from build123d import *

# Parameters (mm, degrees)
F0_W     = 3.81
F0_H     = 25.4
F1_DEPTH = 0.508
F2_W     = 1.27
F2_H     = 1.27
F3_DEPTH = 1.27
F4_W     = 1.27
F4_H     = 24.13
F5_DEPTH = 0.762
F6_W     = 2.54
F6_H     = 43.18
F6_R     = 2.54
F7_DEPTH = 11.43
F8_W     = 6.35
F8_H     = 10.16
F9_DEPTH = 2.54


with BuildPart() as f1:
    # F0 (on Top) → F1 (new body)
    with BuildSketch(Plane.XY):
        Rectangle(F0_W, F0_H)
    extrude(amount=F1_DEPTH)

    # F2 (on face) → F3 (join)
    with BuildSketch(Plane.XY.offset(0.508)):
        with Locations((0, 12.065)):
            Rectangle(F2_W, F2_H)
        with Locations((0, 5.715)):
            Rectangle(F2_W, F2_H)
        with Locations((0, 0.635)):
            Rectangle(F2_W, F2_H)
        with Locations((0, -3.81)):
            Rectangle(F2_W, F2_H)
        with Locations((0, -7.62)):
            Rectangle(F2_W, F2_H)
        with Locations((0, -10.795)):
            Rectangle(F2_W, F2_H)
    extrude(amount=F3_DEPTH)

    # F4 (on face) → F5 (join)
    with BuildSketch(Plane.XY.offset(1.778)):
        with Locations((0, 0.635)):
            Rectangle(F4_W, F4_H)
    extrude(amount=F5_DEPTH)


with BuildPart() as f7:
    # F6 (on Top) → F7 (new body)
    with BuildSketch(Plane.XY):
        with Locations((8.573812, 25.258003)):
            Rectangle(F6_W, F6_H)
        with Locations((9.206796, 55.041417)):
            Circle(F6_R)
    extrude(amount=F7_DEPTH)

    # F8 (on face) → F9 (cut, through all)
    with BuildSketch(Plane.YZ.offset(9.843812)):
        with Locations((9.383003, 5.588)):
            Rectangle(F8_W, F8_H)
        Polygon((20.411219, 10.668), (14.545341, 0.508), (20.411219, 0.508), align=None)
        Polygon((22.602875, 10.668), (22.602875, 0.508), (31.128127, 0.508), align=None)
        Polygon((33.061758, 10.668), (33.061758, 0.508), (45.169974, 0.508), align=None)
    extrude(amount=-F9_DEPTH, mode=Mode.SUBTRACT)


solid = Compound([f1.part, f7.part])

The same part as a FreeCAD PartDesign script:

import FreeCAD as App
import Part
import Sketcher
Q = App.Units.Quantity


def add_polygon(sketch, points):
    """Adds a closed chain of lines whose ends are joined by coincident constraints."""
    first, n = sketch.GeometryCount, len(points)
    for a, b in zip(points, points[1:] + points[:1]):
        sketch.addGeometry(Part.LineSegment(App.Vector(*a, 0), App.Vector(*b, 0)), False)
    for i in range(n):
        sketch.addConstraint(Sketcher.Constraint("Coincident", first + i, 2, first + (i + 1) % n, 1))

doc = App.newDocument("Part")
params = doc.addObject("Spreadsheet::Sheet", "Params")
for row, (alias, value) in enumerate([
    ("sketch1_height", "1 in"),
    ("sketch1_width", "0.15 in"),
    ("pad1_length", "0.02 in"),
    ("sketch2_width", "0.05 in"),
    ("pad2_length", "0.05 in"),
    ("sketch3_width", "0.05 in"),
    ("sketch3_height", "0.95 in"),
    ("pad3_length", "0.03 in"),
    ("sketch4_diameter", "0.2 in"),
    ("sketch4_width", "0.1 in"),
    ("sketch4_height", "1.7 in"),
    ("pad4_length", "0.45 in"),
    ("sketch5_height", "0.4 in"),
    ("sketch5_width", "0.25 in"),
], start=1):
    params.set(f"A{row}", alias)
    params.set(f"B{row}", "=" + value)
    params.setAlias(f"B{row}", alias)

body = doc.addObject("PartDesign::Body", "Body")

sketch1 = body.newObject("Sketcher::SketchObject", "Sketch")
sketch1.AttachmentSupport = (doc.getObject("XY_Plane"), [""])
sketch1.MapMode = "FlatFace"
add_polygon(sketch1, [(-1.9, 12.7), (-1.9, -12.7), (1.9, -12.7), (1.9, 12.7)])
sketch1.addConstraint([
    Sketcher.Constraint("Vertical", 0),
    Sketcher.Constraint("Horizontal", 1),
    Sketcher.Constraint("Vertical", 2),
    Sketcher.Constraint("Horizontal", 3),
    Sketcher.Constraint("Symmetric", 0, 2, 2, 2, -1, 1),
    Sketcher.Constraint("DistanceY", 0, 2, 0, 1, Q("1 in")),
    Sketcher.Constraint("DistanceX", 1, 1, 1, 2, Q("0.15 in")),
])
sketch1.setExpression("Constraints[9]", "Params.sketch1_height")
sketch1.setExpression("Constraints[10]", "Params.sketch1_width")
pad1 = body.newObject("PartDesign::Pad", "Pad")
pad1.Profile = sketch1
pad1.setExpression("Length", "Params.pad1_length")

sketch2 = body.newObject("Sketcher::SketchObject", "Sketch001")
sketch2.AttachmentSupport = (doc.getObject("XY_Plane"), [""])
sketch2.MapMode = "FlatFace"
sketch2.AttachmentOffset = App.Placement(App.Vector(0, 0, 0.02 * 25.4), App.Rotation())
add_polygon(sketch2, [(-0.6, 12.7), (-0.6, 11.4), (0.6, 11.4), (0.6, 12.7)])
add_polygon(sketch2, [(-0.6, 6.3), (-0.6, 5.1), (0.6, 5.1), (0.6, 6.3)])
add_polygon(sketch2, [(-0.6, 1.3), (-0.6, 0), (0.6, 0), (0.6, 1.3)])
add_polygon(sketch2, [(-0.6, -3.2), (-0.6, -4.4), (0.6, -4.4), (0.6, -3.2)])
add_polygon(sketch2, [(-0.6, -7), (-0.6, -8.3), (0.6, -8.3), (0.6, -7)])
add_polygon(sketch2, [(-0.6, -10.2), (-0.6, -11.4), (0.6, -11.4), (0.6, -10.2)])
sketch2.addConstraint([
    Sketcher.Constraint("Vertical", 0),
    Sketcher.Constraint("Horizontal", 1),
    Sketcher.Constraint("Vertical", 2),
    Sketcher.Constraint("Horizontal", 3),
    Sketcher.Constraint("Vertical", 4),
    Sketcher.Constraint("Horizontal", 5),
    Sketcher.Constraint("Vertical", 6),
    Sketcher.Constraint("Horizontal", 7),
    Sketcher.Constraint("Vertical", 8),
    Sketcher.Constraint("Horizontal", 9),
    Sketcher.Constraint("Vertical", 10),
    Sketcher.Constraint("Horizontal", 11),
    Sketcher.Constraint("Vertical", 12),
    Sketcher.Constraint("Horizontal", 13),
    Sketcher.Constraint("Vertical", 14),
    Sketcher.Constraint("Horizontal", 15),
    Sketcher.Constraint("Vertical", 16),
    Sketcher.Constraint("Horizontal", 17),
    Sketcher.Constraint("Vertical", 18),
    Sketcher.Constraint("Horizontal", 19),
    Sketcher.Constraint("Vertical", 20),
    Sketcher.Constraint("Horizontal", 21),
    Sketcher.Constraint("Vertical", 22),
    Sketcher.Constraint("Horizontal", 23),
    Sketcher.Constraint("Symmetric", 8, 2, 9, 2, -1, 1),
    Sketcher.Constraint("Symmetric", 1, 2, 20, 2, -1, 1),
    Sketcher.Constraint("Vertical", 3, 2, 4, 2),
    Sketcher.Constraint("Vertical", 2, 2, 5, 2),
    Sketcher.Constraint("Vertical", 7, 2, 8, 2),
    Sketcher.Constraint("Vertical", 6, 2, 9, 2),
    Sketcher.Constraint("Vertical", 11, 2, 12, 2),
    Sketcher.Constraint("Vertical", 10, 2, 13, 2),
    Sketcher.Constraint("Vertical", 15, 2, 16, 2),
    Sketcher.Constraint("Vertical", 14, 2, 17, 2),
    Sketcher.Constraint("Vertical", 18, 2, 21, 2),
    Sketcher.Constraint("Equal", 23, 0),
    Sketcher.Constraint("Equal", 2, 4),
    Sketcher.Constraint("Equal", 6, 8),
    Sketcher.Constraint("Equal", 10, 12),
    Sketcher.Constraint("Equal", 14, 16),
    Sketcher.Constraint("Equal", 18, 20),
    Sketcher.Constraint("DistanceX", 1, 1, 1, 2, Q("0.05 in")),
    Sketcher.Constraint("DistanceY", -1, 1, 2, 2, Q("0.5 in")),
    Sketcher.Constraint("DistanceY", -1, 1, 4, 2, Q("0.2 in")),
    Sketcher.Constraint("DistanceY", 16, 2, 15, 2, Q("0.2 in")),
    Sketcher.Constraint("DistanceY", 12, 2, -1, 1, Q("0.175 in")),
])
sketch2.setExpression("Constraints[65]", "Params.sketch2_width")
pad2 = body.newObject("PartDesign::Pad", "Pad001")
pad2.Profile = sketch2
pad2.setExpression("Length", "Params.pad2_length")

sketch3 = body.newObject("Sketcher::SketchObject", "Sketch002")
sketch3.AttachmentSupport = (doc.getObject("XY_Plane"), [""])
sketch3.MapMode = "FlatFace"
sketch3.AttachmentOffset = App.Placement(App.Vector(0, 0, 0.07 * 25.4), App.Rotation())
add_polygon(sketch3, [(-0.6, 12.7), (-0.6, -11.4), (0.6, -11.4), (0.6, 12.7)])
sketch3.addConstraint([
    Sketcher.Constraint("Vertical", 0),
    Sketcher.Constraint("Horizontal", 1),
    Sketcher.Constraint("Vertical", 2),
    Sketcher.Constraint("Horizontal", 3),
    Sketcher.Constraint("DistanceX", 1, 1, 1, 2, Q("0.05 in")),
    Sketcher.Constraint("DistanceY", 0, 2, 0, 1, Q("0.95 in")),
    Sketcher.Constraint("DistanceY", -1, 1, 2, 2, Q("0.5 in")),
    Sketcher.Constraint("DistanceX", 0, 2, -1, 1, Q("0.025 in")),
])
sketch3.setExpression("Constraints[8]", "Params.sketch3_width")
sketch3.setExpression("Constraints[9]", "Params.sketch3_height")
pad3 = body.newObject("PartDesign::Pad", "Pad002")
pad3.Profile = sketch3
pad3.setExpression("Length", "Params.pad3_length")
body2 = doc.addObject("PartDesign::Body", "Body001")
body2.AllowCompound = True

sketch4 = body2.newObject("Sketcher::SketchObject", "Sketch003")
sketch4.AttachmentSupport = (doc.getObject("XY_Plane001"), [""])
sketch4.MapMode = "FlatFace"
add_polygon(sketch4, [(7.3, 46.8), (7.3, 3.7), (9.8, 3.7), (9.8, 46.8)])
sketch4.addGeometry(Part.Circle(App.Vector(9.2, 55, 0), App.Vector(0, 0, 1), 2.5), False)
sketch4.addConstraint([
    Sketcher.Constraint("Vertical", 0),
    Sketcher.Constraint("Horizontal", 1),
    Sketcher.Constraint("Vertical", 2),
    Sketcher.Constraint("Horizontal", 3),
    Sketcher.Constraint("Diameter", 4, Q("0.2 in")),
    Sketcher.Constraint("DistanceX", 1, 1, 1, 2, Q("0.1 in")),
    Sketcher.Constraint("DistanceY", 0, 2, 0, 1, Q("1.7 in")),
    Sketcher.Constraint("DistanceX", -1, 1, 0, 2, Q("7.303812 mm")),
    Sketcher.Constraint("DistanceX", -1, 1, 4, 3, Q("9.206796 mm")),
    Sketcher.Constraint("DistanceY", -1, 1, 4, 3, Q("55.041417 mm")),
    Sketcher.Constraint("DistanceY", -1, 1, 0, 2, Q("3.668003 mm")),
])
sketch4.setExpression("Constraints[8]", "Params.sketch4_diameter")
sketch4.setExpression("Constraints[9]", "Params.sketch4_width")
sketch4.setExpression("Constraints[10]", "Params.sketch4_height")
pad4 = body2.newObject("PartDesign::Pad", "Pad003")
pad4.Profile = sketch4
pad4.setExpression("Length", "Params.pad4_length")

sketch5 = body2.newObject("Sketcher::SketchObject", "Sketch004")
sketch5.AttachmentSupport = (doc.getObject("YZ_Plane001"), [""])
sketch5.MapMode = "FlatFace"
sketch5.AttachmentOffset = App.Placement(App.Vector(0, 0, 9.843812), App.Rotation())
add_polygon(sketch5, [(6, 11), (6, 1), (13, 1), (13, 11)])
add_polygon(sketch5, [(20, 11), (15, 1), (20, 1)])
add_polygon(sketch5, [(23, 11), (23, 1), (31, 1)])
add_polygon(sketch5, [(33, 11), (33, 1), (45, 1)])
sketch5.addConstraint([
    Sketcher.Constraint("Vertical", 0),
    Sketcher.Constraint("Horizontal", 1),
    Sketcher.Constraint("Vertical", 2),
    Sketcher.Constraint("Horizontal", 3),
    Sketcher.Constraint("Horizontal", 5),
    Sketcher.Constraint("Vertical", 6),
    Sketcher.Constraint("Vertical", 7),
    Sketcher.Constraint("Horizontal", 8),
    Sketcher.Constraint("Vertical", 10),
    Sketcher.Constraint("Horizontal", 11),
    Sketcher.Constraint("Horizontal", 1, 2, 4, 2),
    Sketcher.Constraint("Horizontal", 3, 2, 6, 2),
    Sketcher.Constraint("Horizontal", 5, 2, 7, 2),
    Sketcher.Constraint("Horizontal", 6, 2, 9, 2),
    Sketcher.Constraint("Horizontal", 8, 2, 10, 2),
    Sketcher.Constraint("Horizontal", 9, 2, 12, 2),
    Sketcher.Constraint("DistanceY", 0, 2, 0, 1, Q("0.4 in")),
    Sketcher.Constraint("Angle", 4, Q("-119.999997 deg")),
    Sketcher.Constraint("Angle", 9, Q("129.999999 deg")),
    Sketcher.Constraint("Angle", 12, Q("139.999999 deg")),
    Sketcher.Constraint("DistanceX", 1, 1, 1, 2, Q("0.25 in")),
    Sketcher.Constraint("DistanceY", -1, 1, 0, 2, Q("0.02 in")),
    Sketcher.Constraint("DistanceX", 7, 2, 11, 2, Q("22.567099 mm")),
    Sketcher.Constraint("DistanceX", -1, 1, 4, 2, Q("14.545341 mm")),
    Sketcher.Constraint("DistanceX", 1, 2, 4, 2, Q("1.987338 mm")),
    Sketcher.Constraint("DistanceX", 5, 2, 10, 2, Q("12.650539 mm")),
])
sketch5.setExpression("Constraints[29]", "Params.sketch5_height")
sketch5.setExpression("Constraints[33]", "Params.sketch5_width")
pocket1 = body2.newObject("PartDesign::Pocket", "Pocket")
pocket1.Profile = sketch5
pocket1.Type = "ThroughAll"

doc.recompute()
